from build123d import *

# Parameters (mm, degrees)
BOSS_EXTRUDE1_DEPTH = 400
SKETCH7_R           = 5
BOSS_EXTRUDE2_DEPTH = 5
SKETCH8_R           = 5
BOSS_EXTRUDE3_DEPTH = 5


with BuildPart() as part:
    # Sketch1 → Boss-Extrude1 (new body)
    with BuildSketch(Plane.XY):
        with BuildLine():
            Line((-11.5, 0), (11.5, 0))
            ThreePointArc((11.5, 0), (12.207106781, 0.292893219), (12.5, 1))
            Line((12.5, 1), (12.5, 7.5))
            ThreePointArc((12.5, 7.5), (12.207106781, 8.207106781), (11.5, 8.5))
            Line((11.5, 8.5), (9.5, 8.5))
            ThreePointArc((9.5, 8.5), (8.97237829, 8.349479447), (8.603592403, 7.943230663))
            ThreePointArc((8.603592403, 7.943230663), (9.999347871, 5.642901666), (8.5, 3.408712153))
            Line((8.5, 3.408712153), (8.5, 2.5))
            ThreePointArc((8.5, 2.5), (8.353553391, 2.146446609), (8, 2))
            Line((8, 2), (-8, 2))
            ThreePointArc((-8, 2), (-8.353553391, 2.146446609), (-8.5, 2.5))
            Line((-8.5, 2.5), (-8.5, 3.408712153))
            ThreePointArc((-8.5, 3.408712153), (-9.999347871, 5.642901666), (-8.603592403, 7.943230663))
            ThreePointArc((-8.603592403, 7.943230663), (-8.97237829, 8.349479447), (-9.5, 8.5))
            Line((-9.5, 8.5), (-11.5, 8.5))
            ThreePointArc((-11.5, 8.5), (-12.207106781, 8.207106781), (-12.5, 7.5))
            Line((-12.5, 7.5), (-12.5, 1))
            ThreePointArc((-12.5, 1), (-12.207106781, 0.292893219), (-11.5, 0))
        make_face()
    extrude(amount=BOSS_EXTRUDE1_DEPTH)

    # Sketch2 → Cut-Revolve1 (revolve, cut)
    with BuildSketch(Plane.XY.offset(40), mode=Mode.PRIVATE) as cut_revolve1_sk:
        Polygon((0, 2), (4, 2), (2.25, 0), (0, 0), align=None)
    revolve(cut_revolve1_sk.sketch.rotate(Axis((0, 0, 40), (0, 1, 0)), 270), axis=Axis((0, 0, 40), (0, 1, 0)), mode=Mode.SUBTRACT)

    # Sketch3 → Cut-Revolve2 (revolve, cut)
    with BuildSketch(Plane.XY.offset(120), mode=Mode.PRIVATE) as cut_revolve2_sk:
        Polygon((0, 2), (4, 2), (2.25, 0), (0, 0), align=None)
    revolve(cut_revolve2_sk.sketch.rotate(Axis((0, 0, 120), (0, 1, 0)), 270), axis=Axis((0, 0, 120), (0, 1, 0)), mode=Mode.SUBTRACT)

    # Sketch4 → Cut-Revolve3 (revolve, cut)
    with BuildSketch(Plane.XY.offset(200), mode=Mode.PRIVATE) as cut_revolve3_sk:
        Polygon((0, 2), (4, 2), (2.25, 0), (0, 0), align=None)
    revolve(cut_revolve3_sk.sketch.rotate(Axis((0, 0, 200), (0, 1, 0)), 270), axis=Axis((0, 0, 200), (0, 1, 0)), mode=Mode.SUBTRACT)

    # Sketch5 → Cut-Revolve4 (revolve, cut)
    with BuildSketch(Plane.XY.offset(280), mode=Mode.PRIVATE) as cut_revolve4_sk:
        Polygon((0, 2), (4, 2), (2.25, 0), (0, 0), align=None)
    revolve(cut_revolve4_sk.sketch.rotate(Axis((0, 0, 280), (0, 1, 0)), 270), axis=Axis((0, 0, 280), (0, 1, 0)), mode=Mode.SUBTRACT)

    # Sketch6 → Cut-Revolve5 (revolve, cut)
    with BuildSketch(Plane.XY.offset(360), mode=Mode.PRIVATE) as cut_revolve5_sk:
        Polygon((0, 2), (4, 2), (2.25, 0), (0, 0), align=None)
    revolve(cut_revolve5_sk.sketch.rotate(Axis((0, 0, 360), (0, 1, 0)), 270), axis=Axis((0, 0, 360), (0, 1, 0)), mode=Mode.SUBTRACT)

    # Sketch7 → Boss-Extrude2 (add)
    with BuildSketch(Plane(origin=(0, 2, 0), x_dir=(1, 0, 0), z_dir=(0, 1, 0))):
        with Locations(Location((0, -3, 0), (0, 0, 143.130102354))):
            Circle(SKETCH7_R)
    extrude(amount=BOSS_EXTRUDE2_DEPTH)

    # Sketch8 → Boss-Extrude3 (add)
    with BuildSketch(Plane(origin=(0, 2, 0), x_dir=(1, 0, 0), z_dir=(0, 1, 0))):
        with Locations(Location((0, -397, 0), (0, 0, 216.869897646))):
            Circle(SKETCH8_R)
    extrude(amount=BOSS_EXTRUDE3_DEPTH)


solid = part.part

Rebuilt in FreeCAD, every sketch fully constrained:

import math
import FreeCAD as App
import Part
import Sketcher

V = App.Vector
Q = App.Units.Quantity


def add_polygon(sketch, points):
    """Adds a closed chain of lines whose ends are joined by coincident constraints."""
    first, n = sketch.GeometryCount, len(points)
    for a, b in zip(points, points[1:] + points[:1]):
        sketch.addGeometry(Part.LineSegment(App.Vector(*a, 0), App.Vector(*b, 0)), False)
    for i in range(n):
        sketch.addConstraint(Sketcher.Constraint("Coincident", first + i, 2, first + (i + 1) % n, 1))

doc = App.newDocument("Part")
body = doc.addObject("PartDesign::Body", "Body")

sketch1 = doc.addObject("Sketcher::SketchObject", "Sketch")
body.addObject(sketch1)
sketch1.AttachmentSupport = (doc.XY_Plane, [""])
sketch1.MapMode = "FlatFace"
sketch1.addGeometry([
    Part.LineSegment(V(-11.5, 0, 0), V(11.5, 0, 0)),
    Part.ArcOfCircle(Part.Circle(V(11.5, 1, 0), V(0, 0, 1), 1), math.radians(-90), math.radians(0)),
    Part.LineSegment(V(12.5, 1, 0), V(12.5, 7.5, 0)),
    Part.ArcOfCircle(Part.Circle(V(11.5, 7.5, 0), V(0, 0, 1), 1), math.radians(0), math.radians(90)),
    Part.LineSegment(V(11.5, 8.5, 0), V(9.5, 8.5, 0)),
    Part.ArcOfCircle(Part.Circle(V(9.5, 7.5, 0), V(0, 0, 1), 1), math.radians(90), math.radians(153.689807)),
    Part.ArcOfCircle(Part.Circle(V(7.5, 5.7, 0), V(0, 0, 1), 2.5), math.radians(-66.421822), math.radians(63.804399)),
    Part.LineSegment(V(8.5, 3.408712, 0), V(8.5, 2.5, 0)),
    Part.ArcOfCircle(Part.Circle(V(8, 2.5, 0), V(0, 0, 1), 0.5), math.radians(-90), math.radians(0)),
    Part.LineSegment(V(8, 2, 0), V(-8, 2, 0)),
    Part.ArcOfCircle(Part.Circle(V(-8, 2.5, 0), V(0, 0, 1), 0.5), math.radians(180), math.radians(270)),
    Part.LineSegment(V(-8.5, 2.5, 0), V(-8.5, 3.408712, 0)),
    Part.ArcOfCircle(Part.Circle(V(-7.5, 5.7, 0), V(0, 0, 1), 2.5), math.radians(116.195601), math.radians(246.421822)),
    Part.ArcOfCircle(Part.Circle(V(-9.5, 7.5, 0), V(0, 0, 1), 1), math.radians(26.310193), math.radians(90)),
    Part.LineSegment(V(-9.5, 8.5, 0), V(-11.5, 8.5, 0)),
    Part.ArcOfCircle(Part.Circle(V(-11.5, 7.5, 0), V(0, 0, 1), 1), math.radians(90), math.radians(180)),
    Part.LineSegment(V(-12.5, 7.5, 0), V(-12.5, 1, 0)),
    Part.ArcOfCircle(Part.Circle(V(-11.5, 1, 0), V(0, 0, 1), 1), math.radians(-180), math.radians(-90)),
], False)
sketch1.addConstraint([
    Sketcher.Constraint("Tangent", 0, 2, 1, 1),
    Sketcher.Constraint("Tangent", 1, 2, 2, 1),
    Sketcher.Constraint("Tangent", 2, 2, 3, 1),
    Sketcher.Constraint("Tangent", 3, 2, 4, 1),
    Sketcher.Constraint("Tangent", 4, 2, 5, 1),
    Sketcher.Constraint("Coincident", 5, 2, 6, 2),
    Sketcher.Constraint("Coincident", 6, 1, 7, 1),
    Sketcher.Constraint("Tangent", 7, 2, 8, 2),
    Sketcher.Constraint("Tangent", 8, 1, 9, 1),
    Sketcher.Constraint("Tangent", 9, 2, 10, 2),
    Sketcher.Constraint("Tangent", 10, 1, 11, 1),
    Sketcher.Constraint("Coincident", 11, 2, 12, 2),
    Sketcher.Constraint("Coincident", 12, 1, 13, 1),
    Sketcher.Constraint("Tangent", 13, 2, 14, 1),
    Sketcher.Constraint("Tangent", 14, 2, 15, 1),
    Sketcher.Constraint("Tangent", 15, 2, 16, 1),
    Sketcher.Constraint("Tangent", 16, 2, 17, 1),
    Sketcher.Constraint("Tangent", 17, 2, 0, 1),
    Sketcher.Constraint("Horizontal", 0),
    Sketcher.Constraint("Vertical", 2),
    Sketcher.Constraint("Horizontal", 4),
    Sketcher.Constraint("Vertical", 7),
    Sketcher.Constraint("Horizontal", 9),
    Sketcher.Constraint("Vertical", 11),
    Sketcher.Constraint("Horizontal", 14),
    Sketcher.Constraint("Vertical", 16),
    Sketcher.Constraint("Equal", 1, 3),
    Sketcher.Constraint("Equal", 3, 5),
    Sketcher.Constraint("Equal", 8, 10),
    Sketcher.Constraint("Equal", 6, 12),
    Sketcher.Constraint("Equal", 5, 13),
    Sketcher.Constraint("Equal", 13, 15),
    Sketcher.Constraint("Equal", 15, 17),
    Sketcher.Constraint("Symmetric", 0, 2, 17, 2, -1, 1),
    Sketcher.Constraint("Symmetric", 6, 3, 12, 3, -2),
    Sketcher.Constraint("Symmetric", 5, 3, 13, 3, -2),
    Sketcher.Constraint("Horizontal", 6, 1, 11, 2),
    Sketcher.Constraint("Radius", 1, Q("1 mm")),
    Sketcher.Constraint("Radius", 6, Q("2.5 mm")),
    Sketcher.Constraint("Radius", 8, Q("0.5 mm")),
    Sketcher.Constraint("DistanceX", 0, 1, 0, 2, Q("23 mm")),
    Sketcher.Constraint("DistanceX", 4, 2, 4, 1, Q("2 mm")),
    Sketcher.Constraint("DistanceX", 9, 2, 9, 1, Q("16 mm")),
    Sketcher.Constraint("DistanceY", 2, 1, 2, 2, Q("6.5 mm")),
    Sketcher.Constraint("DistanceY", -1, 1, 8, 1, Q("2 mm")),
    Sketcher.Constraint("DistanceX", 6, 3, 5, 3, Q("2 mm")),
    Sketcher.Constraint("DistanceY", -1, 1, 6, 3, Q("5.7 mm")),
])
pad1 = doc.addObject("PartDesign::Pad", "Pad")
body.addObject(pad1)
pad1.Profile = sketch1
pad1.Length = 400

sketch2 = doc.addObject("Sketcher::SketchObject", "Sketch001")
body.addObject(sketch2)
sketch2.AttachmentSupport = (doc.XY_Plane, [""])
sketch2.MapMode = "FlatFace"
sketch2.AttachmentOffset = App.Placement(V(0, 0, 40), App.Rotation())
add_polygon(sketch2, [(4, 2), (0, 2), (0, 0), (2.25, 0)])
sketch2.addConstraint([
    Sketcher.Constraint("Horizontal", 0),
    Sketcher.Constraint("Vertical", 1),
    Sketcher.Constraint("Horizontal", 2),
    Sketcher.Constraint("Coincident", 1, 2, -1, 1),
    Sketcher.Constraint("DistanceX", 0, 2, 0, 1, Q("4 mm")),
    Sketcher.Constraint("DistanceY", 1, 2, 1, 1, Q("2 mm")),
    Sketcher.Constraint("DistanceX", 2, 1, 2, 2, Q("2.25 mm")),
])
groove = doc.addObject("PartDesign::Groove", "Groove")
body.addObject(groove)
groove.Profile = sketch2
groove.ReferenceAxis = (sketch2, ["V_Axis"])
groove.Angle = 360

sketch3 = doc.addObject("Sketcher::SketchObject", "Sketch002")
body.addObject(sketch3)
sketch3.AttachmentSupport = (doc.XY_Plane, [""])
sketch3.MapMode = "FlatFace"
sketch3.AttachmentOffset = App.Placement(V(0, 0, 120), App.Rotation())
add_polygon(sketch3, [(4, 2), (0, 2), (0, 0), (2.25, 0)])
sketch3.addConstraint([
    Sketcher.Constraint("Horizontal", 0),
    Sketcher.Constraint("Vertical", 1),
    Sketcher.Constraint("Horizontal", 2),
    Sketcher.Constraint("Coincident", 1, 2, -1, 1),
    Sketcher.Constraint("DistanceX", 0, 2, 0, 1, Q("4 mm")),
    Sketcher.Constraint("DistanceY", 1, 2, 1, 1, Q("2 mm")),
    Sketcher.Constraint("DistanceX", 2, 1, 2, 2, Q("2.25 mm")),
])
groove2 = doc.addObject("PartDesign::Groove", "Groove001")
body.addObject(groove2)
groove2.Profile = sketch3
groove2.ReferenceAxis = (sketch3, ["V_Axis"])
groove2.Angle = 360

sketch4 = doc.addObject("Sketcher::SketchObject", "Sketch003")
body.addObject(sketch4)
sketch4.AttachmentSupport = (doc.XY_Plane, [""])
sketch4.MapMode = "FlatFace"
sketch4.AttachmentOffset = App.Placement(V(0, 0, 200), App.Rotation())
add_polygon(sketch4, [(4, 2), (0, 2), (0, 0), (2.25, 0)])
sketch4.addConstraint([
    Sketcher.Constraint("Horizontal", 0),
    Sketcher.Constraint("Vertical", 1),
    Sketcher.Constraint("Horizontal", 2),
    Sketcher.Constraint("Coincident", 1, 2, -1, 1),
    Sketcher.Constraint("DistanceX", 0, 2, 0, 1, Q("4 mm")),
    Sketcher.Constraint("DistanceY", 1, 2, 1, 1, Q("2 mm")),
    Sketcher.Constraint("DistanceX", 2, 1, 2, 2, Q("2.25 mm")),
])
groove3 = doc.addObject("PartDesign::Groove", "Groove002")
body.addObject(groove3)
groove3.Profile = sketch4
groove3.ReferenceAxis = (sketch4, ["V_Axis"])
groove3.Angle = 360

sketch5 = doc.addObject("Sketcher::SketchObject", "Sketch004")
body.addObject(sketch5)
sketch5.AttachmentSupport = (doc.XY_Plane, [""])
sketch5.MapMode = "FlatFace"
sketch5.AttachmentOffset = App.Placement(V(0, 0, 280), App.Rotation())
add_polygon(sketch5, [(4, 2), (0, 2), (0, 0), (2.25, 0)])
sketch5.addConstraint([
    Sketcher.Constraint("Horizontal", 0),
    Sketcher.Constraint("Vertical", 1),
    Sketcher.Constraint("Horizontal", 2),
    Sketcher.Constraint("Coincident", 1, 2, -1, 1),
    Sketcher.Constraint("DistanceX", 0, 2, 0, 1, Q("4 mm")),
    Sketcher.Constraint("DistanceY", 1, 2, 1, 1, Q("2 mm")),
    Sketcher.Constraint("DistanceX", 2, 1, 2, 2, Q("2.25 mm")),
])
groove4 = doc.addObject("PartDesign::Groove", "Groove003")
body.addObject(groove4)
groove4.Profile = sketch5
groove4.ReferenceAxis = (sketch5, ["V_Axis"])
groove4.Angle = 360

sketch6 = doc.addObject("Sketcher::SketchObject", "Sketch005")
body.addObject(sketch6)
sketch6.AttachmentSupport = (doc.XY_Plane, [""])
sketch6.MapMode = "FlatFace"
sketch6.AttachmentOffset = App.Placement(V(0, 0, 360), App.Rotation())
add_polygon(sketch6, [(4, 2), (0, 2), (0, 0), (2.25, 0)])
sketch6.addConstraint([
    Sketcher.Constraint("Horizontal", 0),
    Sketcher.Constraint("Vertical", 1),
    Sketcher.Constraint("Horizontal", 2),
    Sketcher.Constraint("Coincident", 1, 2, -1, 1),
    Sketcher.Constraint("DistanceX", 0, 2, 0, 1, Q("4 mm")),
    Sketcher.Constraint("DistanceY", 1, 2, 1, 1, Q("2 mm")),
    Sketcher.Constraint("DistanceX", 2, 1, 2, 2, Q("2.25 mm")),
])
groove5 = doc.addObject("PartDesign::Groove", "Groove004")
body.addObject(groove5)
groove5.Profile = sketch6
groove5.ReferenceAxis = (sketch6, ["V_Axis"])
groove5.Angle = 360

sketch7 = doc.addObject("Sketcher::SketchObject", "Sketch006")
body.addObject(sketch7)
sketch7.AttachmentSupport = (doc.XZ_Plane, [""])
sketch7.MapMode = "FlatFace"
sketch7.AttachmentOffset = App.Placement(V(0, 0, -2), App.Rotation())
sketch7.addGeometry(Part.Circle(V(0, 3, 0), V(0, 0, 1), 5), False)
sketch7.addConstraint([
    Sketcher.Constraint("PointOnObject", 0, 3, -2),
    Sketcher.Constraint("Diameter", 0, Q("10 mm")),
    Sketcher.Constraint("DistanceY", -1, 1, 0, 3, Q("3 mm")),
])
pad2 = doc.addObject("PartDesign::Pad", "Pad001")
body.addObject(pad2)
pad2.Profile = sketch7
pad2.Length = 5
pad2.Reversed = True

sketch8 = doc.addObject("Sketcher::SketchObject", "Sketch007")
body.addObject(sketch8)
sketch8.AttachmentSupport = (doc.XZ_Plane, [""])
sketch8.MapMode = "FlatFace"
sketch8.AttachmentOffset = App.Placement(V(0, 0, -2), App.Rotation())
sketch8.addGeometry(Part.Circle(V(0, 397, 0), V(0, 0, 1), 5), False)
sketch8.addConstraint([
    Sketcher.Constraint("PointOnObject", 0, 3, -2),
    Sketcher.Constraint("Diameter", 0, Q("10 mm")),
    Sketcher.Constraint("DistanceY", -1, 1, 0, 3, Q("397 mm")),
])
pad3 = doc.addObject("PartDesign::Pad", "Pad002")
body.addObject(pad3)
pad3.Profile = sketch8
pad3.Length = 5
pad3.Reversed = True

doc.recompute()
